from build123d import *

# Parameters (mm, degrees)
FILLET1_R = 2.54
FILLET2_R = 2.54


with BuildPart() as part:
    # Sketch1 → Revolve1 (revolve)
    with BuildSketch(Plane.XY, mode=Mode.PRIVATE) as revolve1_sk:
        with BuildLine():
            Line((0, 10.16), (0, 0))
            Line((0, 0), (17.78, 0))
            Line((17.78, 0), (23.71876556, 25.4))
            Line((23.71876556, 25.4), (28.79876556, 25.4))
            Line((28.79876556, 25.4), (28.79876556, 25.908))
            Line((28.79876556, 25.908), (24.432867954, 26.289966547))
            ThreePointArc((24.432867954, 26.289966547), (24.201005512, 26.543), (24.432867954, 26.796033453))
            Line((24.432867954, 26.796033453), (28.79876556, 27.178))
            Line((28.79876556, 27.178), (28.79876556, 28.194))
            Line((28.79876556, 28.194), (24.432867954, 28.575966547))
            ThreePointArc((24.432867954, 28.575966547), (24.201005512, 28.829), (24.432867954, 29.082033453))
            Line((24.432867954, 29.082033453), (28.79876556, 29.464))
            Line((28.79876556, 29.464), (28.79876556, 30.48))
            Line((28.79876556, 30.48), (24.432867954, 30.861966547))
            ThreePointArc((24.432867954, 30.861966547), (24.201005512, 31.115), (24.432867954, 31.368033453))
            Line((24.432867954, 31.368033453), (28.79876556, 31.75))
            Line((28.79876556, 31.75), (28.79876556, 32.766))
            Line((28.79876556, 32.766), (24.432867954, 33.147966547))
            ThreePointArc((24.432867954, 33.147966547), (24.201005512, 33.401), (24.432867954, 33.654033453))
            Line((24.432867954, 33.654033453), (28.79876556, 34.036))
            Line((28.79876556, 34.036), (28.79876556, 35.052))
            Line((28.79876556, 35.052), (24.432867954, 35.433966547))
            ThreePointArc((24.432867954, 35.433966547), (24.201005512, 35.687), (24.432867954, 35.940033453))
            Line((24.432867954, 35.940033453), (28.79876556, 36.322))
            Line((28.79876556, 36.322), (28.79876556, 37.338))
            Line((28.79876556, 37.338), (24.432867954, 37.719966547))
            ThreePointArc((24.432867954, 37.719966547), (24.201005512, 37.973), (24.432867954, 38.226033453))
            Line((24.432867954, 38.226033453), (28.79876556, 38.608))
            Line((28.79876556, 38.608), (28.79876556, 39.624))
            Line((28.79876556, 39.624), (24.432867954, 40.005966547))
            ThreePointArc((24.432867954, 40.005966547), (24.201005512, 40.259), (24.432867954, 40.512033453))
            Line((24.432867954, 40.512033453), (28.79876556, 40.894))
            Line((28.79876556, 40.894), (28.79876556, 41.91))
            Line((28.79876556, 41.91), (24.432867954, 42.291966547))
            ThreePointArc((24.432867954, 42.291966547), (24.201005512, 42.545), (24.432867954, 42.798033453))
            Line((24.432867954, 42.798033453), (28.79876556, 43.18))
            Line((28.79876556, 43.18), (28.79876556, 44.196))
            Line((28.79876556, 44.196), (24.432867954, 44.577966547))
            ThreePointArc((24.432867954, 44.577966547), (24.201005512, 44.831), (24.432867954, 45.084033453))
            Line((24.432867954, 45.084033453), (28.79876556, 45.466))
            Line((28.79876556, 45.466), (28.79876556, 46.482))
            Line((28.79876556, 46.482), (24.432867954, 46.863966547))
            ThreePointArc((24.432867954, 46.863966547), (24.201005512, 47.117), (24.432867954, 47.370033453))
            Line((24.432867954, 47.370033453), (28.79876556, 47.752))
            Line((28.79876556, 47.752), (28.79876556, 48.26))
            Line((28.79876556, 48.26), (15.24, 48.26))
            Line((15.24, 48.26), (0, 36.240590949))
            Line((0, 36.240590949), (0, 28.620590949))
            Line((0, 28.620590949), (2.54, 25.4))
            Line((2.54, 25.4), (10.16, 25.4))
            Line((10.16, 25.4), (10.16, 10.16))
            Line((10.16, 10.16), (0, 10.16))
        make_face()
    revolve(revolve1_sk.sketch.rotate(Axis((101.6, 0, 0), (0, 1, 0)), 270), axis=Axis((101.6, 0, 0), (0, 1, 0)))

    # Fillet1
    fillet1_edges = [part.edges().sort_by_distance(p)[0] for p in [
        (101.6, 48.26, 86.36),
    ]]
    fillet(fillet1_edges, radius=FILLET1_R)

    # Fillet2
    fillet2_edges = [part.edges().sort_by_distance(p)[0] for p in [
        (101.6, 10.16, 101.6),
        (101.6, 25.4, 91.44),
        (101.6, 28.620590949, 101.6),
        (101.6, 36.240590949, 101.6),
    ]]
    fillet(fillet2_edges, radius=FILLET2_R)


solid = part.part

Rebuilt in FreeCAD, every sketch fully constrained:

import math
import FreeCAD as App
import Part
import Sketcher
from FreeCAD import Vector
Q = App.Units.Quantity


def edges_at(feature, points):
    """Names of the edges that pass closest to the given points."""
    edges = feature.Shape.Edges
    near = lambda p: min(range(len(edges)), key=lambda i: edges[i].distToShape(Part.Vertex(*p))[0])
    return sorted({f"Edge{near(p) + 1}" for p in points})

doc = App.newDocument("Part")
body = doc.addObject("PartDesign::Body", "Body")

# Sketch on XY plane
sketch1 = body.newObject("Sketcher::SketchObject", "Sketch")
sketch1.AttachmentSupport = (doc.getObject("XY_Plane"), [""])
sketch1.MapMode = "FlatFace"
sketch1.addGeometry(Part.LineSegment(Vector(0, 10.16, 0), Vector(0, 0, 0)), False)
sketch1.addGeometry(Part.LineSegment(Vector(0, 0, 0), Vector(17.78, 0, 0)), False)
sketch1.addGeometry(Part.LineSegment(Vector(17.78, 0, 0), Vector(23.718766, 25.4, 0)), False)
sketch1.addGeometry(Part.LineSegment(Vector(23.718766, 25.4, 0), Vector(28.798766, 25.4, 0)), False)
sketch1.addGeometry(Part.LineSegment(Vector(28.798766, 25.4, 0), Vector(28.798766, 25.908, 0)), False)
sketch1.addGeometry(Part.LineSegment(Vector(28.798766, 25.908, 0), Vector(24.432868, 26.289967, 0)), False)
sketch1.addGeometry(Part.ArcOfCircle(Part.Circle(Vector(24.455006, 26.543, 0), Vector(0, 0, 1), 0.254), math.radians(95), math.radians(265)), False)
sketch1.addGeometry(Part.LineSegment(Vector(24.432868, 26.796033, 0), Vector(28.798766, 27.178, 0)), False)
sketch1.addGeometry(Part.LineSegment(Vector(28.798766, 27.178, 0), Vector(28.798766, 28.194, 0)), False)
sketch1.addGeometry(Part.LineSegment(Vector(28.798766, 28.194, 0), Vector(24.432868, 28.575967, 0)), False)
sketch1.addGeometry(Part.ArcOfCircle(Part.Circle(Vector(24.455006, 28.829, 0), Vector(0, 0, 1), 0.254), math.radians(95), math.radians(265)), False)
sketch1.addGeometry(Part.LineSegment(Vector(24.432868, 29.082033, 0), Vector(28.798766, 29.464, 0)), False)
sketch1.addGeometry(Part.LineSegment(Vector(28.798766, 29.464, 0), Vector(28.798766, 30.48, 0)), False)
sketch1.addGeometry(Part.LineSegment(Vector(28.798766, 30.48, 0), Vector(24.432868, 30.861967, 0)), False)
sketch1.addGeometry(Part.ArcOfCircle(Part.Circle(Vector(24.455006, 31.115, 0), Vector(0, 0, 1), 0.254), math.radians(95), math.radians(265)), False)
sketch1.addGeometry(Part.LineSegment(Vector(24.432868, 31.368033, 0), Vector(28.798766, 31.75, 0)), False)
sketch1.addGeometry(Part.LineSegment(Vector(28.798766, 31.75, 0), Vector(28.798766, 32.766, 0)), False)
sketch1.addGeometry(Part.LineSegment(Vector(28.798766, 32.766, 0), Vector(24.432868, 33.147967, 0)), False)
sketch1.addGeometry(Part.ArcOfCircle(Part.Circle(Vector(24.455006, 33.401, 0), Vector(0, 0, 1), 0.254), math.radians(95), math.radians(265)), False)
sketch1.addGeometry(Part.LineSegment(Vector(24.432868, 33.654033, 0), Vector(28.798766, 34.036, 0)), False)
sketch1.addGeometry(Part.LineSegment(Vector(28.798766, 34.036, 0), Vector(28.798766, 35.052, 0)), False)
sketch1.addGeometry(Part.LineSegment(Vector(28.798766, 35.052, 0), Vector(24.432868, 35.433967, 0)), False)
sketch1.addGeometry(Part.ArcOfCircle(Part.Circle(Vector(24.455006, 35.687, 0), Vector(0, 0, 1), 0.254), math.radians(95), math.radians(265)), False)
sketch1.addGeometry(Part.LineSegment(Vector(24.432868, 35.940033, 0), Vector(28.798766, 36.322, 0)), False)
sketch1.addGeometry(Part.LineSegment(Vector(28.798766, 36.322, 0), Vector(28.798766, 37.338, 0)), False)
sketch1.addGeometry(Part.LineSegment(Vector(28.798766, 37.338, 0), Vector(24.432868, 37.719967, 0)), False)
sketch1.addGeometry(Part.ArcOfCircle(Part.Circle(Vector(24.455006, 37.973, 0), Vector(0, 0, 1), 0.254), math.radians(95), math.radians(265)), False)
sketch1.addGeometry(Part.LineSegment(Vector(24.432868, 38.226033, 0), Vector(28.798766, 38.608, 0)), False)
sketch1.addGeometry(Part.LineSegment(Vector(28.798766, 38.608, 0), Vector(28.798766, 39.624, 0)), False)
sketch1.addGeometry(Part.LineSegment(Vector(28.798766, 39.624, 0), Vector(24.432868, 40.005967, 0)), False)
sketch1.addGeometry(Part.ArcOfCircle(Part.Circle(Vector(24.455006, 40.259, 0), Vector(0, 0, 1), 0.254), math.radians(95), math.radians(265)), False)
sketch1.addGeometry(Part.LineSegment(Vector(24.432868, 40.512033, 0), Vector(28.798766, 40.894, 0)), False)
sketch1.addGeometry(Part.LineSegment(Vector(28.798766, 40.894, 0), Vector(28.798766, 41.91, 0)), False)
sketch1.addGeometry(Part.LineSegment(Vector(28.798766, 41.91, 0), Vector(24.432868, 42.291967, 0)), False)
sketch1.addGeometry(Part.ArcOfCircle(Part.Circle(Vector(24.455006, 42.545, 0), Vector(0, 0, 1), 0.254), math.radians(95), math.radians(265)), False)
sketch1.addGeometry(Part.LineSegment(Vector(24.432868, 42.798033, 0), Vector(28.798766, 43.18, 0)), False)
sketch1.addGeometry(Part.LineSegment(Vector(28.798766, 43.18, 0), Vector(28.798766, 44.196, 0)), False)
sketch1.addGeometry(Part.LineSegment(Vector(28.798766, 44.196, 0), Vector(24.432868, 44.577967, 0)), False)
sketch1.addGeometry(Part.ArcOfCircle(Part.Circle(Vector(24.455006, 44.831, 0), Vector(0, 0, 1), 0.254), math.radians(95), math.radians(265)), False)
sketch1.addGeometry(Part.LineSegment(Vector(24.432868, 45.084033, 0), Vector(28.798766, 45.466, 0)), False)
sketch1.addGeometry(Part.LineSegment(Vector(28.798766, 45.466, 0), Vector(28.798766, 46.482, 0)), False)
sketch1.addGeometry(Part.LineSegment(Vector(28.798766, 46.482, 0), Vector(24.432868, 46.863967, 0)), False)
sketch1.addGeometry(Part.ArcOfCircle(Part.Circle(Vector(24.455006, 47.117, 0), Vector(0, 0, 1), 0.254), math.radians(95), math.radians(265)), False)
sketch1.addGeometry(Part.LineSegment(Vector(24.432868, 47.370033, 0), Vector(28.798766, 47.752, 0)), False)
sketch1.addGeometry(Part.LineSegment(Vector(28.798766, 47.752, 0), Vector(28.798766, 48.26, 0)), False)
sketch1.addGeometry(Part.LineSegment(Vector(28.798766, 48.26, 0), Vector(15.24, 48.26, 0)), False)
sketch1.addGeometry(Part.LineSegment(Vector(15.24, 48.26, 0), Vector(0, 36.240591, 0)), False)
sketch1.addGeometry(Part.LineSegment(Vector(0, 36.240591, 0), Vector(0, 28.620591, 0)), False)
sketch1.addGeometry(Part.LineSegment(Vector(0, 28.620591, 0), Vector(2.54, 25.4, 0)), False)
sketch1.addGeometry(Part.LineSegment(Vector(2.54, 25.4, 0), Vector(10.16, 25.4, 0)), False)
sketch1.addGeometry(Part.LineSegment(Vector(10.16, 25.4, 0), Vector(10.16, 10.16, 0)), False)
sketch1.addGeometry(Part.LineSegment(Vector(10.16, 10.16, 0), Vector(0, 10.16, 0)), False)
sketch1.addGeometry(Part.LineSegment(Vector(101.6, 0, 0), Vector(101.6, 48.26, 0)), True)  # axis
sketch1.addConstraint(Sketcher.Constraint("Coincident", 0, 2, 1, 1))
sketch1.addConstraint(Sketcher.Constraint("Coincident", 1, 2, 2, 1))
sketch1.addConstraint(Sketcher.Constraint("Coincident", 2, 2, 3, 1))
sketch1.addConstraint(Sketcher.Constraint("Coincident", 3, 2, 4, 1))
sketch1.addConstraint(Sketcher.Constraint("Coincident", 4, 2, 5, 1))
sketch1.addConstraint(Sketcher.Constraint("Tangent", 5, 2, 6, 2))
sketch1.addConstraint(Sketcher.Constraint("Tangent", 6, 1, 7, 1))
sketch1.addConstraint(Sketcher.Constraint("Coincident", 7, 2, 8, 1))
sketch1.addConstraint(Sketcher.Constraint("Coincident", 8, 2, 9, 1))
sketch1.addConstraint(Sketcher.Constraint("Tangent", 9, 2, 10, 2))
sketch1.addConstraint(Sketcher.Constraint("Tangent", 10, 1, 11, 1))
sketch1.addConstraint(Sketcher.Constraint("Coincident", 11, 2, 12, 1))
sketch1.addConstraint(Sketcher.Constraint("Coincident", 12, 2, 13, 1))
sketch1.addConstraint(Sketcher.Constraint("Tangent", 13, 2, 14, 2))
sketch1.addConstraint(Sketcher.Constraint("Tangent", 14, 1, 15, 1))
sketch1.addConstraint(Sketcher.Constraint("Coincident", 15, 2, 16, 1))
sketch1.addConstraint(Sketcher.Constraint("Coincident", 16, 2, 17, 1))
sketch1.addConstraint(Sketcher.Constraint("Tangent", 17, 2, 18, 2))
sketch1.addConstraint(Sketcher.Constraint("Tangent", 18, 1, 19, 1))
sketch1.addConstraint(Sketcher.Constraint("Coincident", 19, 2, 20, 1))
sketch1.addConstraint(Sketcher.Constraint("Coincident", 20, 2, 21, 1))
sketch1.addConstraint(Sketcher.Constraint("Tangent", 21, 2, 22, 2))
sketch1.addConstraint(Sketcher.Constraint("Tangent", 22, 1, 23, 1))
sketch1.addConstraint(Sketcher.Constraint("Coincident", 23, 2, 24, 1))
sketch1.addConstraint(Sketcher.Constraint("Coincident", 24, 2, 25, 1))
sketch1.addConstraint(Sketcher.Constraint("Tangent", 25, 2, 26, 2))
sketch1.addConstraint(Sketcher.Constraint("Tangent", 26, 1, 27, 1))
sketch1.addConstraint(Sketcher.Constraint("Coincident", 27, 2, 28, 1))
sketch1.addConstraint(Sketcher.Constraint("Coincident", 28, 2, 29, 1))
sketch1.addConstraint(Sketcher.Constraint("Tangent", 29, 2, 30, 2))
sketch1.addConstraint(Sketcher.Constraint("Tangent", 30, 1, 31, 1))
sketch1.addConstraint(Sketcher.Constraint("Coincident", 31, 2, 32, 1))
sketch1.addConstraint(Sketcher.Constraint("Coincident", 32, 2, 33, 1))
sketch1.addConstraint(Sketcher.Constraint("Tangent", 33, 2, 34, 2))
sketch1.addConstraint(Sketcher.Constraint("Tangent", 34, 1, 35, 1))
sketch1.addConstraint(Sketcher.Constraint("Coincident", 35, 2, 36, 1))
sketch1.addConstraint(Sketcher.Constraint("Coincident", 36, 2, 37, 1))
sketch1.addConstraint(Sketcher.Constraint("Tangent", 37, 2, 38, 2))
sketch1.addConstraint(Sketcher.Constraint("Tangent", 38, 1, 39, 1))
sketch1.addConstraint(Sketcher.Constraint("Coincident", 39, 2, 40, 1))
sketch1.addConstraint(Sketcher.Constraint("Coincident", 40, 2, 41, 1))
sketch1.addConstraint(Sketcher.Constraint("Tangent", 41, 2, 42, 2))
sketch1.addConstraint(Sketcher.Constraint("Tangent", 42, 1, 43, 1))
sketch1.addConstraint(Sketcher.Constraint("Coincident", 43, 2, 44, 1))
sketch1.addConstraint(Sketcher.Constraint("Coincident", 44, 2, 45, 1))
sketch1.addConstraint(Sketcher.Constraint("Coincident", 45, 2, 46, 1))
sketch1.addConstraint(Sketcher.Constraint("Coincident", 46, 2, 47, 1))
sketch1.addConstraint(Sketcher.Constraint("Coincident", 47, 2, 48, 1))
sketch1.addConstraint(Sketcher.Constraint("Coincident", 48, 2, 49, 1))
sketch1.addConstraint(Sketcher.Constraint("Coincident", 49, 2, 50, 1))
sketch1.addConstraint(Sketcher.Constraint("Coincident", 50, 2, 51, 1))
sketch1.addConstraint(Sketcher.Constraint("Coincident", 51, 2, 0, 1))
sketch1.addConstraint(Sketcher.Constraint("Vertical", 0))
sketch1.addConstraint(Sketcher.Constraint("Horizontal", 1))
sketch1.addConstraint(Sketcher.Constraint("Horizontal", 3))
sketch1.addConstraint(Sketcher.Constraint("Vertical", 4))
sketch1.addConstraint(Sketcher.Constraint("Vertical", 8))
sketch1.addConstraint(Sketcher.Constraint("Vertical", 12))
sketch1.addConstraint(Sketcher.Constraint("Vertical", 16))
sketch1.addConstraint(Sketcher.Constraint("Vertical", 20))
sketch1.addConstraint(Sketcher.Constraint("Vertical", 24))
sketch1.addConstraint(Sketcher.Constraint("Vertical", 28))
sketch1.addConstraint(Sketcher.Constraint("Vertical", 32))
sketch1.addConstraint(Sketcher.Constraint("Vertical", 36))
sketch1.addConstraint(Sketcher.Constraint("Vertical", 40))
sketch1.addConstraint(Sketcher.Constraint("Vertical", 44))
sketch1.addConstraint(Sketcher.Constraint("Horizontal", 45))
sketch1.addConstraint(Sketcher.Constraint("Vertical", 47))
sketch1.addConstraint(Sketcher.Constraint("Horizontal", 49))
sketch1.addConstraint(Sketcher.Constraint("Vertical", 50))
sketch1.addConstraint(Sketcher.Constraint("Horizontal", 51))
sketch1.addConstraint(Sketcher.Constraint("Vertical", 52))
sketch1.addConstraint(Sketcher.Constraint("Coincident", 0, 2, -1, 1))
sketch1.addConstraint(Sketcher.Constraint("Equal", 6, 10))
sketch1.addConstraint(Sketcher.Constraint("Equal", 10, 14))
sketch1.addConstraint(Sketcher.Constraint("Equal", 14, 18))
sketch1.addConstraint(Sketcher.Constraint("Equal", 18, 22))
sketch1.addConstraint(Sketcher.Constraint("Equal", 22, 26))
sketch1.addConstraint(Sketcher.Constraint("Equal", 26, 30))
sketch1.addConstraint(Sketcher.Constraint("Equal", 30, 34))
sketch1.addConstraint(Sketcher.Constraint("Equal", 34, 38))
sketch1.addConstraint(Sketcher.Constraint("Equal", 38, 42))
sketch1.addConstraint(Sketcher.Constraint("PointOnObject", 46, 2, -2))
sketch1.addConstraint(Sketcher.Constraint("PointOnObject", 52, 1, -1))
sketch1.addConstraint(Sketcher.Constraint("Parallel", 5, 9))
sketch1.addConstraint(Sketcher.Constraint("Parallel", 7, 11))
sketch1.addConstraint(Sketcher.Constraint("Parallel", 9, 13))
sketch1.addConstraint(Sketcher.Constraint("Parallel", 11, 15))
sketch1.addConstraint(Sketcher.Constraint("Parallel", 13, 17))
sketch1.addConstraint(Sketcher.Constraint("Parallel", 15, 19))
sketch1.addConstraint(Sketcher.Constraint("Parallel", 17, 21))
sketch1.addConstraint(Sketcher.Constraint("Parallel", 19, 23))
sketch1.addConstraint(Sketcher.Constraint("Parallel", 21, 25))
sketch1.addConstraint(Sketcher.Constraint("Parallel", 23, 27))
sketch1.addConstraint(Sketcher.Constraint("Parallel", 25, 29))
sketch1.addConstraint(Sketcher.Constraint("Parallel", 27, 31))
sketch1.addConstraint(Sketcher.Constraint("Parallel", 29, 33))
sketch1.addConstraint(Sketcher.Constraint("Parallel", 31, 35))
sketch1.addConstraint(Sketcher.Constraint("Parallel", 33, 37))
sketch1.addConstraint(Sketcher.Constraint("Parallel", 35, 39))
sketch1.addConstraint(Sketcher.Constraint("Parallel", 37, 41))
sketch1.addConstraint(Sketcher.Constraint("Parallel", 39, 43))
sketch1.addConstraint(Sketcher.Constraint("Perpendicular", 46, 48))
sketch1.addConstraint(Sketcher.Constraint("Horizontal", 3, 2, 48, 2))
sketch1.addConstraint(Sketcher.Constraint("Horizontal", 45, 2, 52, 2))
sketch1.addConstraint(Sketcher.Constraint("Vertical", 6, 3, 10, 3))
sketch1.addConstraint(Sketcher.Constraint("Vertical", 10, 3, 14, 3))
sketch1.addConstraint(Sketcher.Constraint("Vertical", 14, 3, 18, 3))
sketch1.addConstraint(Sketcher.Constraint("Vertical", 18, 3, 22, 3))
sketch1.addConstraint(Sketcher.Constraint("Vertical", 22, 3, 26, 3))
sketch1.addConstraint(Sketcher.Constraint("Vertical", 26, 3, 30, 3))
sketch1.addConstraint(Sketcher.Constraint("Vertical", 30, 3, 34, 3))
sketch1.addConstraint(Sketcher.Constraint("Vertical", 34, 3, 38, 3))
sketch1.addConstraint(Sketcher.Constraint("Vertical", 38, 3, 42, 3))
sketch1.addConstraint(Sketcher.Constraint("Vertical", 5, 2, 6, 1))
sketch1.addConstraint(Sketcher.Constraint("Vertical", 4, 2, 7, 2))
sketch1.addConstraint(Sketcher.Constraint("Vertical", 8, 2, 11, 2))
sketch1.addConstraint(Sketcher.Constraint("Vertical", 12, 2, 15, 2))
sketch1.addConstraint(Sketcher.Constraint("Vertical", 16, 2, 19, 2))
sketch1.addConstraint(Sketcher.Constraint("Vertical", 20, 2, 23, 2))
sketch1.addConstraint(Sketcher.Constraint("Vertical", 24, 2, 27, 2))
sketch1.addConstraint(Sketcher.Constraint("Vertical", 28, 2, 31, 2))
sketch1.addConstraint(Sketcher.Constraint("Vertical", 32, 2, 35, 2))
sketch1.addConstraint(Sketcher.Constraint("Vertical", 36, 2, 39, 2))
sketch1.addConstraint(Sketcher.Constraint("Vertical", 40, 2, 43, 2))
sketch1.addConstraint(Sketcher.Constraint("Equal", 51, 0))
sketch1.addConstraint(Sketcher.Constraint("Equal", 8, 12))
sketch1.addConstraint(Sketcher.Constraint("Equal", 12, 16))
sketch1.addConstraint(Sketcher.Constraint("Equal", 16, 20))
sketch1.addConstraint(Sketcher.Constraint("Equal", 20, 24))
sketch1.addConstraint(Sketcher.Constraint("Equal", 24, 28))
sketch1.addConstraint(Sketcher.Constraint("Equal", 28, 32))
sketch1.addConstraint(Sketcher.Constraint("Equal", 32, 36))
sketch1.addConstraint(Sketcher.Constraint("Equal", 36, 40))
sketch1.addConstraint(Sketcher.Constraint("Equal", 4, 44))
sketch1.addConstraint(Sketcher.Constraint("Equal", 49, 47))
sketch1.addConstraint(Sketcher.Constraint("Radius", 6, Q("0.01 in")))
sketch1.addConstraint(Sketcher.Constraint("DistanceX", 1, 1, 1, 2, Q("0.7 in")))
sketch1.addConstraint(Sketcher.Constraint("DistanceX", 3, 1, 3, 2, Q("0.2 in")))
sketch1.addConstraint(Sketcher.Constraint("DistanceX", 49, 1, 49, 2, Q("0.3 in")))
sketch1.addConstraint(Sketcher.Constraint("DistanceX", 51, 2, 51, 1, Q("0.4 in")))
sketch1.addConstraint(Sketcher.Constraint("DistanceY", 50, 2, 50, 1, Q("0.6 in")))
sketch1.addConstraint(Sketcher.Constraint("DistanceY", 52, 1, 52, 2, Q("1.9 in")))
sketch1.addConstraint(Sketcher.Constraint("DistanceX", -1, 1, 52, 1, Q("4 in")))
sketch1.addConstraint(Sketcher.Constraint("Angle", 5, Q("175 deg")))
sketch1.addConstraint(Sketcher.Constraint("DistanceY", 4, 1, 4, 2, Q("0.02 in")))
sketch1.addConstraint(Sketcher.Constraint("DistanceY", 8, 1, 8, 2, Q("0.04 in")))
sketch1.addConstraint(Sketcher.Constraint("DistanceX", -1, 1, 45, 2, Q("0.6 in")))
sketch1.addConstraint(Sketcher.Constraint("DistanceX", 45, 2, 45, 1, Q("13.558766 mm")))
revolution = body.newObject("PartDesign::Revolution", "Revolution")
revolution.Profile = sketch1
revolution.ReferenceAxis = (sketch1, ["Axis0"])
revolution.Angle = 360
doc.recompute()

fillet = body.newObject("PartDesign::Fillet", "Fillet")
fillet.Base = (revolution, edges_at(revolution, [(101.6, 48.26, 86.36)]))
fillet.Radius = Q("0.1 in")
doc.recompute()

fillet2 = body.newObject("PartDesign::Fillet", "Fillet001")
fillet2.Base = (fillet, edges_at(fillet, [
    (101.6, 10.16, 101.6),
    (101.6, 25.4, 91.44),
    (101.6, 28.621, 101.6),
    (101.6, 36.241, 101.6),
]))
fillet2.Radius = Q("0.1 in")

doc.recompute()
